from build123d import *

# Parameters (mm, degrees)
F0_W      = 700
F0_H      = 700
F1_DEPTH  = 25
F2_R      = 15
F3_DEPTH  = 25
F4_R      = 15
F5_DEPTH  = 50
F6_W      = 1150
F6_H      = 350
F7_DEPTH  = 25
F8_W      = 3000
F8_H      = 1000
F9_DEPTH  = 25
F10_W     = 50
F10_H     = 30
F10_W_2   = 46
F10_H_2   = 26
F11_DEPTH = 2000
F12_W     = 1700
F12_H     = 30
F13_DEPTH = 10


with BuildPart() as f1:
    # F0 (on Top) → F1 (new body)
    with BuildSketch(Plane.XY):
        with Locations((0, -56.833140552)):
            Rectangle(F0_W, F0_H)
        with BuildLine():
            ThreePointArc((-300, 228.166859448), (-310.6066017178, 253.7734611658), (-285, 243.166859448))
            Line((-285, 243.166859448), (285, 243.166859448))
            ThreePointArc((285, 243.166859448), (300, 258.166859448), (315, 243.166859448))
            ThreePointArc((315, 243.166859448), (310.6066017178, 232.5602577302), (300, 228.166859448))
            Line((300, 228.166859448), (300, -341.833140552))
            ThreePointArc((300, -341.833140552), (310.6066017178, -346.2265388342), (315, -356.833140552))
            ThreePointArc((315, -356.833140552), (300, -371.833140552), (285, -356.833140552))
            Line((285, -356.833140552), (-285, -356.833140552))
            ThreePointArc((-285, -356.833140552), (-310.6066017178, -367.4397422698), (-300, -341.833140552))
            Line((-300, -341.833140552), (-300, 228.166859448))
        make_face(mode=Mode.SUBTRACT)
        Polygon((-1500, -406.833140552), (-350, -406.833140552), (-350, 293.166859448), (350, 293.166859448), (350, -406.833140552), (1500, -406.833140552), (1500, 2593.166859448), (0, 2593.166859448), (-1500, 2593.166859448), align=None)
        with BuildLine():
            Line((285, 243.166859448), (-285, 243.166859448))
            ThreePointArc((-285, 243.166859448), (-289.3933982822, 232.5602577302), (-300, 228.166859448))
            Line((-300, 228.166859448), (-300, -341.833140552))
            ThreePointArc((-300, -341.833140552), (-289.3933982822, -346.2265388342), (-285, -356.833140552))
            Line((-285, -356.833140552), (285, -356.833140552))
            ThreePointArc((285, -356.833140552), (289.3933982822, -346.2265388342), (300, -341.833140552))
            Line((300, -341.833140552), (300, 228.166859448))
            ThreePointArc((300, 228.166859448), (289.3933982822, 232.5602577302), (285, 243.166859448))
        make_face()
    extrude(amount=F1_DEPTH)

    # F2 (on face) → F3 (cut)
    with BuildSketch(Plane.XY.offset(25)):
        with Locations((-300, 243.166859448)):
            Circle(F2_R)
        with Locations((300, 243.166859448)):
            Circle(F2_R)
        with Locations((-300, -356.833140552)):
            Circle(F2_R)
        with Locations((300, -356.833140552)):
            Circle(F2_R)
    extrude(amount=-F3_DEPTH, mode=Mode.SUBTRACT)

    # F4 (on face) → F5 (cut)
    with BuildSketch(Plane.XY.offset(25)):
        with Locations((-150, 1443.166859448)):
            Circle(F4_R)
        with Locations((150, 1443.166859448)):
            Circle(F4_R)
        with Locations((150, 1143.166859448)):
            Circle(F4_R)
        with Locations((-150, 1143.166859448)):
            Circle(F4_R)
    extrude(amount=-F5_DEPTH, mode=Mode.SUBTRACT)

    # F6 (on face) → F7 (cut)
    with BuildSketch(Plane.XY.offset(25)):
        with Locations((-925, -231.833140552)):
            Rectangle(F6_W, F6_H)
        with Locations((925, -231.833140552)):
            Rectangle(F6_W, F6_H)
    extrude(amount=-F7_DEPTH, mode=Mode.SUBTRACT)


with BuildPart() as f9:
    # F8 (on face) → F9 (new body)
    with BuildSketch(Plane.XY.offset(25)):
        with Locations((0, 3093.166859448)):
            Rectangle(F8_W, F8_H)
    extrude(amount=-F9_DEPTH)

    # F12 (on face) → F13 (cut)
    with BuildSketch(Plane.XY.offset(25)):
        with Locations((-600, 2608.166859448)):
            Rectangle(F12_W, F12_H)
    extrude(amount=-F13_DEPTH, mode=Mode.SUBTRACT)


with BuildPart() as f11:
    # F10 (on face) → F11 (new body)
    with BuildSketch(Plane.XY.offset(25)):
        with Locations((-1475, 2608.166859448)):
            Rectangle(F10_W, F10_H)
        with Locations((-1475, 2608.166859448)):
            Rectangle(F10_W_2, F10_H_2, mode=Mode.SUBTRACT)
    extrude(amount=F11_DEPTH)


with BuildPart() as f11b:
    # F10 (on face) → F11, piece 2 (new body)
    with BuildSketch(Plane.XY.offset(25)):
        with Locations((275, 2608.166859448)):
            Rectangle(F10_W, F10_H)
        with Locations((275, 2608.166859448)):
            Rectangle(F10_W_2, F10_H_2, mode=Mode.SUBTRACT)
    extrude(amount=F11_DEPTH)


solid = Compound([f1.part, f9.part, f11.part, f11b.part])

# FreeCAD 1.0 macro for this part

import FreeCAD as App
import Part
import Sketcher

V = App.Vector

doc = App.newDocument("Part")
body = doc.addObject("PartDesign::Body", "Body")

# Sketch on XY plane
sketch1 = body.newObject("Sketcher::SketchObject", "Sketch")
sketch1.AttachmentSupport = (doc.getObject("XY_Plane"), [""])
sketch1.MapMode = "FlatFace"
sketch1.addGeometry([
    Part.LineSegment(V(1500, -407, 0), V(1500, 2593, 0)),  # 0
    Part.LineSegment(V(1500, 2593, 0), V(-1500, 2593, 0)),  # 1
    Part.LineSegment(V(-1500, 2593, 0), V(-1500, -407, 0)),  # 2
    Part.LineSegment(V(-1500, -407, 0), V(1500, -407, 0)),  # 3
    Part.Circle(V(-300, 243, 0), V(0, 0, 1), 15),  # 4
    Part.Circle(V(300, 243, 0), V(0, 0, 1), 15),  # 5
    Part.Circle(V(300, -357, 0), V(0, 0, 1), 15),  # 6
    Part.Circle(V(-300, -357, 0), V(0, 0, 1), 15),  # 7
], False)
sketch1.addConstraint([
    Sketcher.Constraint("Coincident", 0, 2, 1, 1),
    Sketcher.Constraint("Coincident", 1, 2, 2, 1),
    Sketcher.Constraint("Coincident", 2, 2, 3, 1),
    Sketcher.Constraint("Coincident", 3, 2, 0, 1),
    Sketcher.Constraint("Vertical", 0),
    Sketcher.Constraint("Horizontal", 1),
    Sketcher.Constraint("Vertical", 2),
    Sketcher.Constraint("Horizontal", 3),
    Sketcher.Constraint("Equal", 4, 5),
    Sketcher.Constraint("Equal", 5, 6),
    Sketcher.Constraint("Equal", 6, 7),
    Sketcher.Constraint("Symmetric", 4, 3, 5, 3, -2),
    Sketcher.Constraint("Symmetric", 6, 3, 7, 3, -2),
    Sketcher.Constraint("Vertical", 5, 3, 6, 3),
    Sketcher.Constraint("Equal", 3, 0),
    Sketcher.Constraint("Diameter", 4, 30.0),
    Sketcher.Constraint("DistanceX", 1, 2, 1, 1, 3000.0),
    Sketcher.Constraint("DistanceX", 4, 3, -1, 1, 300.0),
    Sketcher.Constraint("DistanceX", -1, 1, 0, 2, 1500.0),
    Sketcher.Constraint("DistanceY", 6, 3, 5, 3, 600.0),
    Sketcher.Constraint("DistanceY", 5, 3, 0, 2, 2350.0),
    Sketcher.Constraint("DistanceY", -1, 1, 4, 3, 243.166859),
])
pad1 = body.newObject("PartDesign::Pad", "Pad")
pad1.Profile = sketch1
pad1.Length = 25

# Sketch on XY plane
sketch2 = body.newObject("Sketcher::SketchObject", "Sketch001")
sketch2.AttachmentSupport = (doc.getObject("XY_Plane"), [""])
sketch2.MapMode = "FlatFace"
sketch2.AttachmentOffset = App.Placement(V(0, 0, 25), App.Rotation())
sketch2.addGeometry([
    Part.Circle(V(-300, 243, 0), V(0, 0, 1), 15),
    Part.Circle(V(300, 243, 0), V(0, 0, 1), 15),
    Part.Circle(V(-300, -357, 0), V(0, 0, 1), 15),
    Part.Circle(V(300, -357, 0), V(0, 0, 1), 15),
], False)
sketch2.addConstraint([
    Sketcher.Constraint("Equal", 0, 1),
    Sketcher.Constraint("Equal", 1, 2),
    Sketcher.Constraint("Equal", 2, 3),
    Sketcher.Constraint("Symmetric", 0, 3, 1, 3, -2),
    Sketcher.Constraint("Symmetric", 2, 3, 3, 3, -2),
    Sketcher.Constraint("Vertical", 0, 3, 2, 3),
    Sketcher.Constraint("Diameter", 0, 30.0),
    Sketcher.Constraint("DistanceX", 0, 3, -1, 1, 300.0),
    Sketcher.Constraint("DistanceY", 2, 3, 0, 3, 600.0),
    Sketcher.Constraint("DistanceY", -1, 1, 0, 3, 243.166859),
])
pocket1 = body.newObject("PartDesign::Pocket", "Pocket")
pocket1.Profile = sketch2
pocket1.Length = 25

# Sketch on XY plane
sketch3 = body.newObject("Sketcher::SketchObject", "Sketch002")
sketch3.AttachmentSupport = (doc.getObject("XY_Plane"), [""])
sketch3.MapMode = "FlatFace"
sketch3.AttachmentOffset = App.Placement(V(0, 0, 25), App.Rotation())
sketch3.addGeometry([
    Part.Circle(V(-150, 1443, 0), V(0, 0, 1), 15),
    Part.Circle(V(150, 1443, 0), V(0, 0, 1), 15),
    Part.Circle(V(150, 1143, 0), V(0, 0, 1), 15),
    Part.Circle(V(-150, 1143, 0), V(0, 0, 1), 15),
], False)
sketch3.addConstraint([
    Sketcher.Constraint("Equal", 0, 1),
    Sketcher.Constraint("Equal", 1, 2),
    Sketcher.Constraint("Equal", 2, 3),
    Sketcher.Constraint("Symmetric", 0, 3, 1, 3, -2),
    Sketcher.Constraint("Symmetric", 2, 3, 3, 3, -2),
    Sketcher.Constraint("Vertical", 1, 3, 2, 3),
    Sketcher.Constraint("Diameter", 0, 30.0),
    Sketcher.Constraint("DistanceX", 0, 3, -1, 1, 150.0),
    Sketcher.Constraint("DistanceY", 2, 3, 1, 3, 300.0),
    Sketcher.Constraint("DistanceY", -1, 1, 0, 3, 1443.166859),
])
pocket2 = body.newObject("PartDesign::Pocket", "Pocket001")
pocket2.Profile = sketch3
pocket2.Length = 50

# Sketch on XY plane
sketch4 = body.newObject("Sketcher::SketchObject", "Sketch003")
sketch4.AttachmentSupport = (doc.getObject("XY_Plane"), [""])
sketch4.MapMode = "FlatFace"
sketch4.AttachmentOffset = App.Placement(V(0, 0, 25), App.Rotation())
sketch4.addGeometry([
    Part.LineSegment(V(-1500, -57, 0), V(-1500, -407, 0)),  # 0
    Part.LineSegment(V(-1500, -407, 0), V(-350, -407, 0)),  # 1
    Part.LineSegment(V(-350, -407, 0), V(-350, -57, 0)),  # 2
    Part.LineSegment(V(-350, -57, 0), V(-1500, -57, 0)),  # 3
    Part.LineSegment(V(350, -57, 0), V(350, -407, 0)),  # 4
    Part.LineSegment(V(350, -407, 0), V(1500, -407, 0)),  # 5
    Part.LineSegment(V(1500, -407, 0), V(1500, -57, 0)),  # 6
    Part.LineSegment(V(1500, -57, 0), V(350, -57, 0)),  # 7
], False)
sketch4.addConstraint([
    Sketcher.Constraint("Coincident", 0, 2, 1, 1),
    Sketcher.Constraint("Coincident", 1, 2, 2, 1),
    Sketcher.Constraint("Coincident", 2, 2, 3, 1),
    Sketcher.Constraint("Coincident", 3, 2, 0, 1),
    Sketcher.Constraint("Coincident", 4, 2, 5, 1),
    Sketcher.Constraint("Coincident", 5, 2, 6, 1),
    Sketcher.Constraint("Coincident", 6, 2, 7, 1),
    Sketcher.Constraint("Coincident", 7, 2, 4, 1),
    Sketcher.Constraint("Vertical", 0),
    Sketcher.Constraint("Horizontal", 1),
    Sketcher.Constraint("Vertical", 2),
    Sketcher.Constraint("Horizontal", 3),
    Sketcher.Constraint("Vertical", 4),
    Sketcher.Constraint("Horizontal", 5),
    Sketcher.Constraint("Vertical", 6),
    Sketcher.Constraint("Horizontal", 7),
    Sketcher.Constraint("Symmetric", 1, 2, 4, 2, -2),
    Sketcher.Constraint("Symmetric", 3, 2, 6, 2, -2),
    Sketcher.Constraint("DistanceX", 1, 1, 1, 2, 1150.0),
    Sketcher.Constraint("DistanceY", 0, 2, 0, 1, 350.0),
    Sketcher.Constraint("DistanceX", 0, 2, -1, 1, 1500.0),
    Sketcher.Constraint("DistanceY", 0, 2, -1, 1, 406.833141),
])
pocket3 = body.newObject("PartDesign::Pocket", "Pocket002")
pocket3.Profile = sketch4
pocket3.Length = 25
body2 = doc.addObject("PartDesign::Body", "Body001")

# Sketch on XY plane
sketch5 = body2.newObject("Sketcher::SketchObject", "Sketch004")
sketch5.AttachmentSupport = (doc.getObject("XY_Plane001"), [""])
sketch5.MapMode = "FlatFace"
sketch5.AttachmentOffset = App.Placement(V(0, 0, 25), App.Rotation())
sketch5.addGeometry([
    Part.LineSegment(V(-1500, 3593, 0), V(-1500, 2593, 0)),
    Part.LineSegment(V(-1500, 2593, 0), V(1500, 2593, 0)),
    Part.LineSegment(V(1500, 2593, 0), V(1500, 3593, 0)),
    Part.LineSegment(V(1500, 3593, 0), V(-1500, 3593, 0)),
], False)
sketch5.addConstraint([
    Sketcher.Constraint("Coincident", 0, 2, 1, 1),
    Sketcher.Constraint("Coincident", 1, 2, 2, 1),
    Sketcher.Constraint("Coincident", 2, 2, 3, 1),
    Sketcher.Constraint("Coincident", 3, 2, 0, 1),
    Sketcher.Constraint("Vertical", 0),
    Sketcher.Constraint("Horizontal", 1),
    Sketcher.Constraint("Vertical", 2),
    Sketcher.Constraint("Horizontal", 3),
    Sketcher.Constraint("DistanceX", 1, 1, 1, 2, 3000.0),
    Sketcher.Constraint("DistanceY", 0, 2, 0, 1, 1000.0),
    Sketcher.Constraint("DistanceX", 0, 2, -1, 1, 1500.0),
    Sketcher.Constraint("DistanceY", -1, 1, 0, 2, 2593.166859),
])
pad2 = body2.newObject("PartDesign::Pad", "Pad001")
pad2.Profile = sketch5
pad2.Length = 25
pad2.Reversed = True

# Sketch on XY plane
sketch6 = body2.newObject("Sketcher::SketchObject", "Sketch005")
sketch6.AttachmentSupport = (doc.getObject("XY_Plane001"), [""])
sketch6.MapMode = "FlatFace"
sketch6.AttachmentOffset = App.Placement(V(0, 0, 25), App.Rotation())
sketch6.addGeometry([
    Part.LineSegment(V(-1450, 2623, 0), V(-1450, 2593, 0)),
    Part.LineSegment(V(-1450, 2593, 0), V(250, 2593, 0)),
    Part.LineSegment(V(250, 2593, 0), V(250, 2623, 0)),
    Part.LineSegment(V(250, 2623, 0), V(-1450, 2623, 0)),
], False)
sketch6.addConstraint([
    Sketcher.Constraint("Coincident", 0, 2, 1, 1),
    Sketcher.Constraint("Coincident", 1, 2, 2, 1),
    Sketcher.Constraint("Coincident", 2, 2, 3, 1),
    Sketcher.Constraint("Coincident", 3, 2, 0, 1),
    Sketcher.Constraint("Vertical", 0),
    Sketcher.Constraint("Horizontal", 1),
    Sketcher.Constraint("Vertical", 2),
    Sketcher.Constraint("Horizontal", 3),
    Sketcher.Constraint("DistanceX", 1, 1, 1, 2, 1700.0),
    Sketcher.Constraint("DistanceY", 0, 2, 0, 1, 30.0),
    Sketcher.Constraint("DistanceX", 0, 2, -1, 1, 1450.0),
    Sketcher.Constraint("DistanceY", -1, 1, 0, 2, 2593.166859),
])
pocket4 = body2.newObject("PartDesign::Pocket", "Pocket003")
pocket4.Profile = sketch6
pocket4.Length = 10
body3 = doc.addObject("PartDesign::Body", "Body002")

# Sketch on XY plane
sketch7 = body3.newObject("Sketcher::SketchObject", "Sketch006")
sketch7.AttachmentSupport = (doc.getObject("XY_Plane002"), [""])
sketch7.MapMode = "FlatFace"
sketch7.AttachmentOffset = App.Placement(V(0, 0, 25), App.Rotation())
sketch7.addGeometry([
    Part.LineSegment(V(-1500, 2623, 0), V(-1500, 2593, 0)),  # 0
    Part.LineSegment(V(-1500, 2593, 0), V(-1450, 2593, 0)),  # 1
    Part.LineSegment(V(-1450, 2593, 0), V(-1450, 2623, 0)),  # 2
    Part.LineSegment(V(-1450, 2623, 0), V(-1500, 2623, 0)),  # 3
    Part.LineSegment(V(-1452, 2595, 0), V(-1498, 2595, 0)),  # 4
    Part.LineSegment(V(-1498, 2595, 0), V(-1498, 2621, 0)),  # 5
    Part.LineSegment(V(-1498, 2621, 0), V(-1452, 2621, 0)),  # 6
    Part.LineSegment(V(-1452, 2621, 0), V(-1452, 2595, 0)),  # 7
], False)
sketch7.addConstraint([
    Sketcher.Constraint("Coincident", 0, 2, 1, 1),
    Sketcher.Constraint("Coincident", 1, 2, 2, 1),
    Sketcher.Constraint("Coincident", 2, 2, 3, 1),
    Sketcher.Constraint("Coincident", 3, 2, 0, 1),
    Sketcher.Constraint("Coincident", 4, 2, 5, 1),
    Sketcher.Constraint("Coincident", 5, 2, 6, 1),
    Sketcher.Constraint("Coincident", 6, 2, 7, 1),
    Sketcher.Constraint("Coincident", 7, 2, 4, 1),
    Sketcher.Constraint("Vertical", 0),
    Sketcher.Constraint("Horizontal", 1),
    Sketcher.Constraint("Vertical", 2),
    Sketcher.Constraint("Horizontal", 3),
    Sketcher.Constraint("Horizontal", 4),
    Sketcher.Constraint("Vertical", 5),
    Sketcher.Constraint("Horizontal", 6),
    Sketcher.Constraint("Vertical", 7),
    Sketcher.Constraint("DistanceX", 1, 1, 1, 2, 50.0),
    Sketcher.Constraint("DistanceX", 4, 2, 4, 1, 46.0),
    Sketcher.Constraint("DistanceY", 0, 2, 0, 1, 30.0),
    Sketcher.Constraint("DistanceY", 5, 1, 5, 2, 26.0),
    Sketcher.Constraint("DistanceX", 0, 2, -1, 1, 1500.0),
    Sketcher.Constraint("DistanceX", 4, 2, -1, 1, 1498.0),
    Sketcher.Constraint("DistanceY", 0, 2, 4, 2, 2.0),
    Sketcher.Constraint("DistanceY", -1, 1, 0, 2, 2593.166859),
])
pad3 = body3.newObject("PartDesign::Pad", "Pad002")
pad3.Profile = sketch7
pad3.Length = 2000
body4 = doc.addObject("PartDesign::Body", "Body003")

# Sketch on XY plane
sketch8 = body4.newObject("Sketcher::SketchObject", "Sketch007")
sketch8.AttachmentSupport = (doc.getObject("XY_Plane003"), [""])
sketch8.MapMode = "FlatFace"
sketch8.AttachmentOffset = App.Placement(V(0, 0, 25), App.Rotation())
sketch8.addGeometry([
    Part.LineSegment(V(250, 2623, 0), V(250, 2593, 0)),  # 0
    Part.LineSegment(V(250, 2593, 0), V(300, 2593, 0)),  # 1
    Part.LineSegment(V(300, 2593, 0), V(300, 2623, 0)),  # 2
    Part.LineSegment(V(300, 2623, 0), V(250, 2623, 0)),  # 3
    Part.LineSegment(V(298, 2595, 0), V(252, 2595, 0)),  # 4
    Part.LineSegment(V(252, 2595, 0), V(252, 2621, 0)),  # 5
    Part.LineSegment(V(252, 2621, 0), V(298, 2621, 0)),  # 6
    Part.LineSegment(V(298, 2621, 0), V(298, 2595, 0)),  # 7
], False)
sketch8.addConstraint([
    Sketcher.Constraint("Coincident", 0, 2, 1, 1),
    Sketcher.Constraint("Coincident", 1, 2, 2, 1),
    Sketcher.Constraint("Coincident", 2, 2, 3, 1),
    Sketcher.Constraint("Coincident", 3, 2, 0, 1),
    Sketcher.Constraint("Coincident", 4, 2, 5, 1),
    Sketcher.Constraint("Coincident", 5, 2, 6, 1),
    Sketcher.Constraint("Coincident", 6, 2, 7, 1),
    Sketcher.Constraint("Coincident", 7, 2, 4, 1),
    Sketcher.Constraint("Vertical", 0),
    Sketcher.Constraint("Horizontal", 1),
    Sketcher.Constraint("Vertical", 2),
    Sketcher.Constraint("Horizontal", 3),
    Sketcher.Constraint("Horizontal", 4),
    Sketcher.Constraint("Vertical", 5),
    Sketcher.Constraint("Horizontal", 6),
    Sketcher.Constraint("Vertical", 7),
    Sketcher.Constraint("DistanceX", 1, 1, 1, 2, 50.0),
    Sketcher.Constraint("DistanceX", 4, 2, 4, 1, 46.0),
    Sketcher.Constraint("DistanceY", 0, 2, 0, 1, 30.0),
    Sketcher.Constraint("DistanceY", 5, 1, 5, 2, 26.0),
    Sketcher.Constraint("DistanceX", -1, 1, 0, 2, 250.0),
    Sketcher.Constraint("DistanceX", -1, 1, 4, 2, 252.0),
    Sketcher.Constraint("DistanceY", 0, 2, 4, 2, 2.0),
    Sketcher.Constraint("DistanceY", -1, 1, 0, 2, 2593.166859),
])
pad4 = body4.newObject("PartDesign::Pad", "Pad003")
pad4.Profile = sketch8
pad4.Length = 2000

doc.recompute()
